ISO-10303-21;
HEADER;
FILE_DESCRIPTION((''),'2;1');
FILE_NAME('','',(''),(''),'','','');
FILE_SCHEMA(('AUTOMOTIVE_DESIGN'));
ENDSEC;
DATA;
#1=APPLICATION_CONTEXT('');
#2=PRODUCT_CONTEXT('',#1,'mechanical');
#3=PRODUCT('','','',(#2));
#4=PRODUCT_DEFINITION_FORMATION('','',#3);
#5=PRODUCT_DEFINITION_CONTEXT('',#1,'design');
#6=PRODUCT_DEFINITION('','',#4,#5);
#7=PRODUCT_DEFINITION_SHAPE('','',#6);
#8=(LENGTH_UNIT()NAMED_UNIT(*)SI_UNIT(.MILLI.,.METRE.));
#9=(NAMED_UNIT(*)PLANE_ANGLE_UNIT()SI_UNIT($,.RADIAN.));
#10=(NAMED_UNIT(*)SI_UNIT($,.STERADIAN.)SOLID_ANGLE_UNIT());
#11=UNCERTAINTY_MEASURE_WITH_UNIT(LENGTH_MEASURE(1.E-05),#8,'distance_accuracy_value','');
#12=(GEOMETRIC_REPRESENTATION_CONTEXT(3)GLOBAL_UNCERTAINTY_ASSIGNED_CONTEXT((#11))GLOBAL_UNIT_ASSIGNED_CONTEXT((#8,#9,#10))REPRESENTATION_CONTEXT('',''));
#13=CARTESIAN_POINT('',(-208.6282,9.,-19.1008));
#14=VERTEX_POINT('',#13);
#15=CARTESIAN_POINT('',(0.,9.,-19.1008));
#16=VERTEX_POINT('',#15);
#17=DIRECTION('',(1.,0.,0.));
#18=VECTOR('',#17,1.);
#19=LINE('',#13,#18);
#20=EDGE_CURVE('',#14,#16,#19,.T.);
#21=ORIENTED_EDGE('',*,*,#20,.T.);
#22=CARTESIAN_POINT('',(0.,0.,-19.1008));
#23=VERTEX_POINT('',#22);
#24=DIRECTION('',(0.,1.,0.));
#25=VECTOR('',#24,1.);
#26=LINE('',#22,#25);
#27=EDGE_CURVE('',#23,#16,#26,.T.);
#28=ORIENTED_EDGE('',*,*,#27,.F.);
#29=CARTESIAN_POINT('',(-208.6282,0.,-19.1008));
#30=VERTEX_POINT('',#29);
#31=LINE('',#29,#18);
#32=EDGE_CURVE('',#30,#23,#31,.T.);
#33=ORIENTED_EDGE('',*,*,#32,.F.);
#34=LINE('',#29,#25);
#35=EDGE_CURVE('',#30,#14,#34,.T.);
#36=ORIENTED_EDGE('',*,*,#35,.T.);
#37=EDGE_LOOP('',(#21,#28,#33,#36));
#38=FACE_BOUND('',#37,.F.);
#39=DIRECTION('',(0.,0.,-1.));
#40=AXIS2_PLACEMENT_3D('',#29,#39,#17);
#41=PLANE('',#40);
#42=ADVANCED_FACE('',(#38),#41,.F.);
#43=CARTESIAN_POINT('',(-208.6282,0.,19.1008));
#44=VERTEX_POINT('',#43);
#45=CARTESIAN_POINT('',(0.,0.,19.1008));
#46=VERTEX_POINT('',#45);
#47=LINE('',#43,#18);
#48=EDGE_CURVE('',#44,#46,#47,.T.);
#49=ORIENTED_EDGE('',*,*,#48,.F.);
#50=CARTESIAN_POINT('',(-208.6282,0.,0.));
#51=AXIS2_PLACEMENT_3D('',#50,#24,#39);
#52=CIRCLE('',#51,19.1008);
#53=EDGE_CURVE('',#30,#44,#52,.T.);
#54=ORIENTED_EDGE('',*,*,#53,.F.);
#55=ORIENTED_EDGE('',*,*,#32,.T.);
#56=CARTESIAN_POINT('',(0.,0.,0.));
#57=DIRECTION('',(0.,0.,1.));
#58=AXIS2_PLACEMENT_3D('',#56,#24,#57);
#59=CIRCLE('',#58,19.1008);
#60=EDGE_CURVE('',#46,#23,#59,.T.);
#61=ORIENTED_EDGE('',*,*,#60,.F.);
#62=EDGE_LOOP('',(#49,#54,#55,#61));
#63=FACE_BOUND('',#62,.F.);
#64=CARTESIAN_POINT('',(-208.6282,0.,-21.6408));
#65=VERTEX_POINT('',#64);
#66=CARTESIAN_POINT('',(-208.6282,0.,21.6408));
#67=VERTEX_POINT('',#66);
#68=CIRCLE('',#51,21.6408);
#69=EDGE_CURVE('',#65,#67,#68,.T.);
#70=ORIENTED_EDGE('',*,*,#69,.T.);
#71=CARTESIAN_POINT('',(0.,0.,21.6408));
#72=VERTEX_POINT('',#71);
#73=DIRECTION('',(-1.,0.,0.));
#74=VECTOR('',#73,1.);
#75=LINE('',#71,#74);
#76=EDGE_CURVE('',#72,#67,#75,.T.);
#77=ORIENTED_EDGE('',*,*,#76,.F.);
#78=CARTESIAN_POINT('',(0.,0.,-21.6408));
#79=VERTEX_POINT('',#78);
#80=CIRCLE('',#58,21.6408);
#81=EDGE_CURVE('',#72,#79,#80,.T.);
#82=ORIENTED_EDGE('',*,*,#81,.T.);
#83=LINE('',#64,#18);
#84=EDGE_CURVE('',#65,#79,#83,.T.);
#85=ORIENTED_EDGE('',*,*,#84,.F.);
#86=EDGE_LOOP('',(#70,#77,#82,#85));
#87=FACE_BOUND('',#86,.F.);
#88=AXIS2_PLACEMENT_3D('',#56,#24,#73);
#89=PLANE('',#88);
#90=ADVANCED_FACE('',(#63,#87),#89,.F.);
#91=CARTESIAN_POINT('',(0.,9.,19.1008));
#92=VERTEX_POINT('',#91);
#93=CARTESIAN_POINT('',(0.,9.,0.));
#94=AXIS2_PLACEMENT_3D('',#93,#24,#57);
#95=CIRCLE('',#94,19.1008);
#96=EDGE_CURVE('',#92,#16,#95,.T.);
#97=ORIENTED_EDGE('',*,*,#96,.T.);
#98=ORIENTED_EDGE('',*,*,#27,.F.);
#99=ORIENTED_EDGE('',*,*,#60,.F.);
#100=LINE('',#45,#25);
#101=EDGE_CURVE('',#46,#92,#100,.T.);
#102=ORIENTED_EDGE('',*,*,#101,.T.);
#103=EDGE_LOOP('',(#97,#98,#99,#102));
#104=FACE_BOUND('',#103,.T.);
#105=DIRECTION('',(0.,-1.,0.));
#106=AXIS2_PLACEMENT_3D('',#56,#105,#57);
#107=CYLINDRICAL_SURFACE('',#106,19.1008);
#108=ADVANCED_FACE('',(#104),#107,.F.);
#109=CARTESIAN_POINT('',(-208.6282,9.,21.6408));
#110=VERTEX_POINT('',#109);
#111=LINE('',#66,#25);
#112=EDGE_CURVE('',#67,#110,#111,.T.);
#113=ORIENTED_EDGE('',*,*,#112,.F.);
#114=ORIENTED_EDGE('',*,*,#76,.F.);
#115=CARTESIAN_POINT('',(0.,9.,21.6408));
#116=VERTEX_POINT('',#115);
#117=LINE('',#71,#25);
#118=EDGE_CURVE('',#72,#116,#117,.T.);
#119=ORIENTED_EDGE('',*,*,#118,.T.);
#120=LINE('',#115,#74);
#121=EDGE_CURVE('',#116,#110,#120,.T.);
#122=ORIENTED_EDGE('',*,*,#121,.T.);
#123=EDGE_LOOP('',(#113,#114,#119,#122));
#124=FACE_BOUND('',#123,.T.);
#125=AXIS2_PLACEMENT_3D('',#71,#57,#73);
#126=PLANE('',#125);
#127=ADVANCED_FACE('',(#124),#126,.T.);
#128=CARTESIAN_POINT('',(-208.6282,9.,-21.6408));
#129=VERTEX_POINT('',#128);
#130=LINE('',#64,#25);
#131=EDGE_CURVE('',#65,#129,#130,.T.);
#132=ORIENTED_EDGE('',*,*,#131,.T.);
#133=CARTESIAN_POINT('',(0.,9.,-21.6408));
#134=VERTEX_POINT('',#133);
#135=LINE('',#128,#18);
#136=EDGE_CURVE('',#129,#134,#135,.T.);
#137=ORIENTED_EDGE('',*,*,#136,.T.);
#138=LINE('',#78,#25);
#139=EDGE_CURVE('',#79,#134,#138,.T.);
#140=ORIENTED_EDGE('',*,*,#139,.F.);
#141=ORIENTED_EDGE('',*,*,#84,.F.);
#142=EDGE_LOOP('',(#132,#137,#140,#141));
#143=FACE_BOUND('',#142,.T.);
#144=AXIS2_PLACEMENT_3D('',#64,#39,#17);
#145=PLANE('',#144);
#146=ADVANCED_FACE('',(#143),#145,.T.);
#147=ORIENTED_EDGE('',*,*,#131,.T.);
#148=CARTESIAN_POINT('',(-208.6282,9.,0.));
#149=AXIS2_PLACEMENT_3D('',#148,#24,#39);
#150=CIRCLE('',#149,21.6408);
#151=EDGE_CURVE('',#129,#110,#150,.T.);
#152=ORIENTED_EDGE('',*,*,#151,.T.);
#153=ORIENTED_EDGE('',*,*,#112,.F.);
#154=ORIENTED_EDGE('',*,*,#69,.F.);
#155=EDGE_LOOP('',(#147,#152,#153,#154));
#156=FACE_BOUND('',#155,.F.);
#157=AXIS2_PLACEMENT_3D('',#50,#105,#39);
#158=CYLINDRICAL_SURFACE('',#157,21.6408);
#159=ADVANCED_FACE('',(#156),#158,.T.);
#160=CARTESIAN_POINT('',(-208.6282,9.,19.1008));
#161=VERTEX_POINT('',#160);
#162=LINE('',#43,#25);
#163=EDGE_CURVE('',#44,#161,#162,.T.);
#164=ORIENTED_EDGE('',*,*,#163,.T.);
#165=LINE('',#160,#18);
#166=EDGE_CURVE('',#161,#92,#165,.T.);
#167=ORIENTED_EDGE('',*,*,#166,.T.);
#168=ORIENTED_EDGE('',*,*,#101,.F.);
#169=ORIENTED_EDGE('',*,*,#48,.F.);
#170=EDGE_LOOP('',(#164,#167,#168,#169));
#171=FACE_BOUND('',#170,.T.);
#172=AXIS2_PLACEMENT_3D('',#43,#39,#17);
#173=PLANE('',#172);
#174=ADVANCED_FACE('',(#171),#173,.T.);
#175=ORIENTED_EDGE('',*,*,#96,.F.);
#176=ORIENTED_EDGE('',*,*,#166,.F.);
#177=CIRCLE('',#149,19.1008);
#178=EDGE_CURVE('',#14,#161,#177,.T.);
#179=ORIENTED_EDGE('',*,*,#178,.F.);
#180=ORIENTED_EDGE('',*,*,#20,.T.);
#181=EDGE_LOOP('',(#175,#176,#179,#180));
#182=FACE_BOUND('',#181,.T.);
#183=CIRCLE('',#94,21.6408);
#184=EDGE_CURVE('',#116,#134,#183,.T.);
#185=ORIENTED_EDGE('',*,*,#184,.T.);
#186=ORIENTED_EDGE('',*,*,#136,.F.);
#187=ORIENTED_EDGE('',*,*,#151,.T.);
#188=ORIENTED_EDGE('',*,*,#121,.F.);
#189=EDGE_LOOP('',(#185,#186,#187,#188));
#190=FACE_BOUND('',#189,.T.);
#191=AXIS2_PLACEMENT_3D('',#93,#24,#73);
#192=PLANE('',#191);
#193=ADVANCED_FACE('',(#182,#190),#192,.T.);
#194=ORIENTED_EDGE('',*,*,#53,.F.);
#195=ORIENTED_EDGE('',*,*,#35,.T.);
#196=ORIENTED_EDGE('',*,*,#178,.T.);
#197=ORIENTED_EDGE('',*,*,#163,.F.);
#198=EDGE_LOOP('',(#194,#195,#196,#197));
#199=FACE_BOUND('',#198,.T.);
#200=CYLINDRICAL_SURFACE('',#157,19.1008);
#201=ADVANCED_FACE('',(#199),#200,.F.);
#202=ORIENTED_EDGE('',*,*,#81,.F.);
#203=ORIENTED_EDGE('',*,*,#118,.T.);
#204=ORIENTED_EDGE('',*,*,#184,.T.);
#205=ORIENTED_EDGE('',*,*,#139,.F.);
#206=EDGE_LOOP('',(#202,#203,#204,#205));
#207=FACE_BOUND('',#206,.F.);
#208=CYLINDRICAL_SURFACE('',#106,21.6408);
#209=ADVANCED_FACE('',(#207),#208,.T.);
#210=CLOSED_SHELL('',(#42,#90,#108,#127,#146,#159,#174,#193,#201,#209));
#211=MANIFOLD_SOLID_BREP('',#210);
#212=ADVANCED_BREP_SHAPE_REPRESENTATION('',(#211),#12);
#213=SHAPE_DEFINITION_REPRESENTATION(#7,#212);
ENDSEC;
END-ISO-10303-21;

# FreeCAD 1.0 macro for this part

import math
import FreeCAD as App
import Part
import Sketcher
from FreeCAD import Vector
Q = App.Units.Quantity

doc = App.newDocument("Part")
body = doc.addObject("PartDesign::Body", "Body")

# Sketch on XZ plane
sketch1 = doc.addObject("Sketcher::SketchObject", "Sketch")
body.addObject(sketch1)
sketch1.AttachmentSupport = (doc.XZ_Plane, [""])
sketch1.MapMode = "FlatFace"
sketch1.addGeometry(Part.LineSegment(Vector(-209, 22, 0), Vector(0, 22, 0)), False)
sketch1.addGeometry(Part.ArcOfCircle(Part.Circle(Vector(0, 0, 0), Vector(0, 0, 1), 22), math.radians(-90), math.radians(90)), False)
sketch1.addGeometry(Part.LineSegment(Vector(0, -22, 0), Vector(-209, -22, 0)), False)
sketch1.addGeometry(Part.ArcOfCircle(Part.Circle(Vector(-209, 0, 0), Vector(0, 0, 1), 22), math.radians(90), math.radians(270)), False)
sketch1.addGeometry(Part.LineSegment(Vector(0, 19, 0), Vector(-209, 19, 0)), False)
sketch1.addGeometry(Part.ArcOfCircle(Part.Circle(Vector(-209, 0, 0), Vector(0, 0, 1), 19), math.radians(90), math.radians(270)), False)
sketch1.addGeometry(Part.LineSegment(Vector(-209, -19, 0), Vector(0, -19, 0)), False)
sketch1.addGeometry(Part.ArcOfCircle(Part.Circle(Vector(0, 0, 0), Vector(0, 0, 1), 19), math.radians(-90), math.radians(90)), False)
sketch1.addConstraint(Sketcher.Constraint("Tangent", 0, 2, 1, 2))
sketch1.addConstraint(Sketcher.Constraint("Tangent", 1, 1, 2, 1))
sketch1.addConstraint(Sketcher.Constraint("Tangent", 2, 2, 3, 2))
sketch1.addConstraint(Sketcher.Constraint("Tangent", 3, 1, 0, 1))
sketch1.addConstraint(Sketcher.Constraint("Tangent", 4, 2, 5, 1))
sketch1.addConstraint(Sketcher.Constraint("Tangent", 5, 2, 6, 1))
sketch1.addConstraint(Sketcher.Constraint("Tangent", 6, 2, 7, 1))
sketch1.addConstraint(Sketcher.Constraint("Tangent", 7, 2, 4, 1))
sketch1.addConstraint(Sketcher.Constraint("Horizontal", 0))
sketch1.addConstraint(Sketcher.Constraint("Horizontal", 2))
sketch1.addConstraint(Sketcher.Constraint("Horizontal", 4))
sketch1.addConstraint(Sketcher.Constraint("Horizontal", 6))
sketch1.addConstraint(Sketcher.Constraint("Coincident", 1, 3, -1, 1))
sketch1.addConstraint(Sketcher.Constraint("Coincident", 7, 3, -1, 1))
sketch1.addConstraint(Sketcher.Constraint("Vertical", 5, 3, 2, 2))
sketch1.addConstraint(Sketcher.Constraint("Radius", 5, Q("0.752 in")))
sketch1.addConstraint(Sketcher.Constraint("DistanceY", 4, 2, 3, 1, Q("0.1 in")))
sketch1.addConstraint(Sketcher.Constraint("DistanceX", 0, 1, 0, 2, Q("8.2137 in")))
pad1 = doc.addObject("PartDesign::Pad", "Pad")
body.addObject(pad1)
pad1.Profile = sketch1
pad1.Length = 9
pad1.Reversed = True

doc.recompute()
